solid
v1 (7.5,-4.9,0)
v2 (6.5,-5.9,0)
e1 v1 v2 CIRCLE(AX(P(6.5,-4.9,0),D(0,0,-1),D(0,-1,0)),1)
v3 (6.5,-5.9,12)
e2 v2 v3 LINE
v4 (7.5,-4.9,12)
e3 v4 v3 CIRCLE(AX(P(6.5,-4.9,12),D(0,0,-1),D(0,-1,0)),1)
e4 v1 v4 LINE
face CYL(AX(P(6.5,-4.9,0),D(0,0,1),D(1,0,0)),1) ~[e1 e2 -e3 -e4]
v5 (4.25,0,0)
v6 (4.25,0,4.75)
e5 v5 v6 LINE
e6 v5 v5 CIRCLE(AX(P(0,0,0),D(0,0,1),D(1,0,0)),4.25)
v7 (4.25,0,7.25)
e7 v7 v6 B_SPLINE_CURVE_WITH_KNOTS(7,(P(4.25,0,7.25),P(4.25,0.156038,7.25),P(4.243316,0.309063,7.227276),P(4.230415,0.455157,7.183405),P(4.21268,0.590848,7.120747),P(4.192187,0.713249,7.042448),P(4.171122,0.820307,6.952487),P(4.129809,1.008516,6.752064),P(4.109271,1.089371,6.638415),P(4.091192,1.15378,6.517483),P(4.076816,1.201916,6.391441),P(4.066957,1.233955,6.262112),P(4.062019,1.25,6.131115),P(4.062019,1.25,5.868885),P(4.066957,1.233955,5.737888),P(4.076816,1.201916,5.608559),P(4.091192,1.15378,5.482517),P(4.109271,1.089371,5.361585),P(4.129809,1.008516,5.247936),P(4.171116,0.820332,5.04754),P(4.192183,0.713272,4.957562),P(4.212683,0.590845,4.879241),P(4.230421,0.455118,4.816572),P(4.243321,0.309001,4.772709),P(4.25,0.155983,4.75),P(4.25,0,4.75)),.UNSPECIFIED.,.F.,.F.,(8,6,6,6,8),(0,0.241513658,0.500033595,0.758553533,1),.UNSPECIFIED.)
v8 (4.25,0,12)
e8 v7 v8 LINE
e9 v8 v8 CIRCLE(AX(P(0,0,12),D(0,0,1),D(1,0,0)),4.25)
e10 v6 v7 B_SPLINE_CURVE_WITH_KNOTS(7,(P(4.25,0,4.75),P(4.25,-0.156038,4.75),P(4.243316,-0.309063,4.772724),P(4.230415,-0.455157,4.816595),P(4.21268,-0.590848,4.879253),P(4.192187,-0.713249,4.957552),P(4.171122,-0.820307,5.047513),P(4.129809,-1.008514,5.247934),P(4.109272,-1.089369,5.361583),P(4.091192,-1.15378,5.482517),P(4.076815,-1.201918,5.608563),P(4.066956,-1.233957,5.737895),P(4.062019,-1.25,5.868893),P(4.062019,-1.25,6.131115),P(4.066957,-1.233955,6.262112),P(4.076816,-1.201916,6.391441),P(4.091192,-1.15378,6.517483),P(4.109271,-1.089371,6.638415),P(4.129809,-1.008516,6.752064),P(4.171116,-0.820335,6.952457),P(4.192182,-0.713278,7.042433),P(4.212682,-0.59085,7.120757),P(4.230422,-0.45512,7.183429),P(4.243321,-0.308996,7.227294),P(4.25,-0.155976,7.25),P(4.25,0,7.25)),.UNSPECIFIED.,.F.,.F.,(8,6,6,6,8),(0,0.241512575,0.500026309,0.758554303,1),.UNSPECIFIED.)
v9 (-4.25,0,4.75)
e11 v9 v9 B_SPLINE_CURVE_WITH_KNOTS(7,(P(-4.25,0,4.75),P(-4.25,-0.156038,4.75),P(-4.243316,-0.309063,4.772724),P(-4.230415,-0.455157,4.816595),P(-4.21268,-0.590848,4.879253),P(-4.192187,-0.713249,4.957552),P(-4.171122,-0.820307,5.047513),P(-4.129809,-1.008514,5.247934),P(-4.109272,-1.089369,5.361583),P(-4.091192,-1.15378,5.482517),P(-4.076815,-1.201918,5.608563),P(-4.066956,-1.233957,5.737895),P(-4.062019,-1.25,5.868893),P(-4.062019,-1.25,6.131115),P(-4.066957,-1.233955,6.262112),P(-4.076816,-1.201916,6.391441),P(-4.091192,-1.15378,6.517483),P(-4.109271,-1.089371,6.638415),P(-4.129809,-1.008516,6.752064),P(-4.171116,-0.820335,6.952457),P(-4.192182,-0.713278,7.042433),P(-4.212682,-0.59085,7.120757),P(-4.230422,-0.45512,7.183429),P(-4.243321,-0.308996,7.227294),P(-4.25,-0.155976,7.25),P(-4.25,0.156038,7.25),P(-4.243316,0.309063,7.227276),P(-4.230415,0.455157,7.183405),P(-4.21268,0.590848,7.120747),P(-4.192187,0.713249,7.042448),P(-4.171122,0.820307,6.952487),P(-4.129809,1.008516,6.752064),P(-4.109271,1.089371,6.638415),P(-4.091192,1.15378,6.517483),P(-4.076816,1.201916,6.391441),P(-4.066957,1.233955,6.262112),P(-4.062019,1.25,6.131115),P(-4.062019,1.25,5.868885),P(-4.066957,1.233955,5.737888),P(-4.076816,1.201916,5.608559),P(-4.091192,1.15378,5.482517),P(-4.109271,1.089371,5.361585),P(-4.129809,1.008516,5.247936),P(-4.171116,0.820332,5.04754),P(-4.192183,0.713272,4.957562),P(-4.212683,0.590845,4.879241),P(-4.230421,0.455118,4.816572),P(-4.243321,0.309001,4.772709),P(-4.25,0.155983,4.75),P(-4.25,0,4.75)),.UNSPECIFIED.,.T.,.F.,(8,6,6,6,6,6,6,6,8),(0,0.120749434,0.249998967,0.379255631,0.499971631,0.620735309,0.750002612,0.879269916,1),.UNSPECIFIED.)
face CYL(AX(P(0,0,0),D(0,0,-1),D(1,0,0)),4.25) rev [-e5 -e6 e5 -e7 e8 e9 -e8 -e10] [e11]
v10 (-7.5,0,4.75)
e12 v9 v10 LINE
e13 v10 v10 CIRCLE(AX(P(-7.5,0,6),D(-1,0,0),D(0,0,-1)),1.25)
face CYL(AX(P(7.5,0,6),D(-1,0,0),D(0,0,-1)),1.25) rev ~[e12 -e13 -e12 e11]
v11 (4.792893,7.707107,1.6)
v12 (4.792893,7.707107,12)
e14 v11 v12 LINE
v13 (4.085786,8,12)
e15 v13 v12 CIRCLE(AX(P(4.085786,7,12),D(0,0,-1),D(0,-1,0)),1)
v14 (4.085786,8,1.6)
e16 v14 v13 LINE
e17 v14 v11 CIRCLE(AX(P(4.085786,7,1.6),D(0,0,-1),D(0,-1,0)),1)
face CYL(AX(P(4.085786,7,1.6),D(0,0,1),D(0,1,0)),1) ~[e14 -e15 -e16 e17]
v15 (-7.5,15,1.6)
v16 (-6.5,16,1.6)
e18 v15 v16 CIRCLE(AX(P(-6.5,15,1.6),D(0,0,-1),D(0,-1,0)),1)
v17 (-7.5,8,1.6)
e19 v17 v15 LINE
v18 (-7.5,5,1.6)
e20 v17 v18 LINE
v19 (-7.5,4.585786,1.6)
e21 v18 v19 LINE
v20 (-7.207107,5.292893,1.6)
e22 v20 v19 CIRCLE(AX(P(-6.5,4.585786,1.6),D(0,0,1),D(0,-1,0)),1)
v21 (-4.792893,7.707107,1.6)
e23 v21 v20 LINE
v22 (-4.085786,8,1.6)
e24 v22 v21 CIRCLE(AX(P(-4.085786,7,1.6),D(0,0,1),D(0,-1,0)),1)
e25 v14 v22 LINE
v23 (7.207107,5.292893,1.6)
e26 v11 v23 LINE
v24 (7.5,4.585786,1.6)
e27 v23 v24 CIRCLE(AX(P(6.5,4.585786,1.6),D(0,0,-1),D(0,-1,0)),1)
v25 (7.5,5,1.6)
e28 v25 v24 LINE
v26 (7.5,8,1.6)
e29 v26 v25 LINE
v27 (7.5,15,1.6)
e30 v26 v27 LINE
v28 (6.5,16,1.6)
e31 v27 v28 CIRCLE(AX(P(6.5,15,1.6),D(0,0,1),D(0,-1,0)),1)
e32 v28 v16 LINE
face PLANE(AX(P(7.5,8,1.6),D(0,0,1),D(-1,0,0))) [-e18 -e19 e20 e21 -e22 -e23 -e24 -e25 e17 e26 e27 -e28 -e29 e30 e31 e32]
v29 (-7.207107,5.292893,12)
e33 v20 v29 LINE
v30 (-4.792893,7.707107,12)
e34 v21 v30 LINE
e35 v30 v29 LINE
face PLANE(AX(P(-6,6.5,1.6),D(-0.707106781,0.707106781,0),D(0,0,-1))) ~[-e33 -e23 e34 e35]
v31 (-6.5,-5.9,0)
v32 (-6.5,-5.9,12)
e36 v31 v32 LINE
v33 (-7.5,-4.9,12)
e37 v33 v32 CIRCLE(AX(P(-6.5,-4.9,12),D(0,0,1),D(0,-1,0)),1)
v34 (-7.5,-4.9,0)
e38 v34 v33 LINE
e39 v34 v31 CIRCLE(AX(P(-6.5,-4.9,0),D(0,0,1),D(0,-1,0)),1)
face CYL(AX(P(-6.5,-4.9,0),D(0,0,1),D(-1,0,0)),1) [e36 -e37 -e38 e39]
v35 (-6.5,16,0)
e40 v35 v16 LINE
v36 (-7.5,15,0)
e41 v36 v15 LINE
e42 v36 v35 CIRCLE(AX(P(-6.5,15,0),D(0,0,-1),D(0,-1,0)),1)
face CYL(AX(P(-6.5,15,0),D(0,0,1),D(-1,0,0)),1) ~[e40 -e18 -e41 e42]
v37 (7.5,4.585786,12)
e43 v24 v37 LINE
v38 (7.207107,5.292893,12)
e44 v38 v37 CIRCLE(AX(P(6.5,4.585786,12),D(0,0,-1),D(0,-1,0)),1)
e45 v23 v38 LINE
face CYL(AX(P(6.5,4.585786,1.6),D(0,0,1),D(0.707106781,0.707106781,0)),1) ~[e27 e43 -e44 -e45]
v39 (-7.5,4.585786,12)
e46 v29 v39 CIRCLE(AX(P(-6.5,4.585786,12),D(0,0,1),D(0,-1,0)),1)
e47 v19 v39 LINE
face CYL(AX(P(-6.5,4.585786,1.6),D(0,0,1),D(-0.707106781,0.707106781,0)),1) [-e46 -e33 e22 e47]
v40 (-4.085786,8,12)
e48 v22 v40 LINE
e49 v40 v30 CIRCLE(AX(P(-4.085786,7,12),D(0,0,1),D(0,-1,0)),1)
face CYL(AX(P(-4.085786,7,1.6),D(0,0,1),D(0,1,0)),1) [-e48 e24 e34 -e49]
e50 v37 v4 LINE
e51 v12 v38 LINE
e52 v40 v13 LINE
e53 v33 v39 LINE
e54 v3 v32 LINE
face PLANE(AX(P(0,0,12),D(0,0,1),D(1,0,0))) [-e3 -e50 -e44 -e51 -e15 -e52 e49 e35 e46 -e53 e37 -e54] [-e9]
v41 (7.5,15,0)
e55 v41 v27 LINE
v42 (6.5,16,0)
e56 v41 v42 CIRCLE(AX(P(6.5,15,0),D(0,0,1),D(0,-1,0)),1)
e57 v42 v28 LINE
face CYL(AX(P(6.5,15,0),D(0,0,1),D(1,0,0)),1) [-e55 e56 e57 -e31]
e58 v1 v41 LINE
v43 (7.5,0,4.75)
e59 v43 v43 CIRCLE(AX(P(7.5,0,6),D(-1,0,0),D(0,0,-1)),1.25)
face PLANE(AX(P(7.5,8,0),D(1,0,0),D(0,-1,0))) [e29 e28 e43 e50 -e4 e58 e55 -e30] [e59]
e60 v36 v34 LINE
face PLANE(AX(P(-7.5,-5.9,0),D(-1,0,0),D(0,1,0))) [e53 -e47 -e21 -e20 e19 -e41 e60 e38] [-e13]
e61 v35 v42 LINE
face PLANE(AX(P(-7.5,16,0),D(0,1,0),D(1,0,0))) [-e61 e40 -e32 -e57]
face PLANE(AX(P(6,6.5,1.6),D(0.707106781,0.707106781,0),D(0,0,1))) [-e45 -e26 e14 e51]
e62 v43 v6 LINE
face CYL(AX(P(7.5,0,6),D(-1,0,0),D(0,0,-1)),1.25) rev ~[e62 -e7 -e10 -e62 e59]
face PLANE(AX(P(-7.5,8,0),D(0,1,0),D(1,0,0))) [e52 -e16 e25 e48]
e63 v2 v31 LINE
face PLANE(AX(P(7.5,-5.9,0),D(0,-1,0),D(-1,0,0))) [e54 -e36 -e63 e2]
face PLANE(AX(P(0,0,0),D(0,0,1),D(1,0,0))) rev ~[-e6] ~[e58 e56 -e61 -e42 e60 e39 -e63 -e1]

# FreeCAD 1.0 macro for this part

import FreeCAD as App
import Part
import Sketcher

V = App.Vector
Q = App.Units.Quantity


def edges_at(feature, points):
    """Names of the edges that pass closest to the given points."""
    edges = feature.Shape.Edges
    near = lambda p: min(range(len(edges)), key=lambda i: edges[i].distToShape(Part.Vertex(*p))[0])
    return sorted({f"Edge{near(p) + 1}" for p in points})


def add_polygon(sketch, points):
    """Adds a closed chain of lines whose ends are joined by coincident constraints."""
    first, n = sketch.GeometryCount, len(points)
    for a, b in zip(points, points[1:] + points[:1]):
        sketch.addGeometry(Part.LineSegment(App.Vector(*a, 0), App.Vector(*b, 0)), False)
    for i in range(n):
        sketch.addConstraint(Sketcher.Constraint("Coincident", first + i, 2, first + (i + 1) % n, 1))

doc = App.newDocument("Part")
body = doc.addObject("PartDesign::Body", "Body")

# Sketch on XY plane
sketch1 = body.newObject("Sketcher::SketchObject", "Sketch")
sketch1.AttachmentSupport = (doc.getObject("XY_Plane"), [""])
sketch1.MapMode = "FlatFace"
add_polygon(sketch1, [(7.5, 8), (-7.5, 8), (-7.5, -5.9), (7.5, -5.9)])  # lines 0-3
sketch1.addGeometry(Part.Circle(V(0, 0, 0), V(0, 0, 1), 4.2), False)  # 4
sketch1.addConstraint([
    Sketcher.Constraint("Horizontal", 0),
    Sketcher.Constraint("Vertical", 1),
    Sketcher.Constraint("Horizontal", 2),
    Sketcher.Constraint("Vertical", 3),
    Sketcher.Constraint("Coincident", 4, 3, -1, 1),
    Sketcher.Constraint("Diameter", 4, Q("8.5 mm")),
    Sketcher.Constraint("DistanceX", 0, 2, 0, 1, Q("15 mm")),
    Sketcher.Constraint("DistanceY", -1, 1, 0, 2, Q("8 mm")),
    Sketcher.Constraint("DistanceY", 1, 2, -1, 1, Q("5.9 mm")),
    Sketcher.Constraint("DistanceX", 0, 2, -1, 1, Q("7.5 mm")),
])
pad1 = body.newObject("PartDesign::Pad", "Pad")
pad1.Profile = sketch1
pad1.Length = 12

# Sketch on XZ plane
sketch2 = body.newObject("Sketcher::SketchObject", "Sketch001")
sketch2.AttachmentSupport = (doc.getObject("XZ_Plane"), [""])
sketch2.MapMode = "FlatFace"
sketch2.AttachmentOffset = App.Placement(V(0, 0, -8), App.Rotation())
add_polygon(sketch2, [(7.5, 0), (-7.5, 0), (-7.5, 1.6), (7.5, 1.6)])  # lines 0-3
sketch2.addConstraint([
    Sketcher.Constraint("Horizontal", 0),
    Sketcher.Constraint("Vertical", 1),
    Sketcher.Constraint("Horizontal", 2),
    Sketcher.Constraint("Vertical", 3),
    Sketcher.Constraint("Symmetric", 0, 2, 3, 2, -1, 1),
    Sketcher.Constraint("DistanceY", 1, 1, 1, 2, Q("1.6 mm")),
    Sketcher.Constraint("DistanceX", 0, 2, 0, 1, Q("15 mm")),
])
pad2 = body.newObject("PartDesign::Pad", "Pad001")
pad2.Profile = sketch2
pad2.Length = 8
pad2.Reversed = True

# Sketch on YZ plane
sketch3 = body.newObject("Sketcher::SketchObject", "Sketch002")
sketch3.AttachmentSupport = (doc.getObject("YZ_Plane"), [""])
sketch3.MapMode = "FlatFace"
sketch3.AttachmentOffset = App.Placement(V(0, 0, 7.5), App.Rotation())
sketch3.addGeometry(Part.Circle(V(0, 6, 0), V(0, 0, 1), 1.2), False)
sketch3.addConstraint([
    Sketcher.Constraint("PointOnObject", 0, 3, -2),
    Sketcher.Constraint("Diameter", 0, Q("2.5 mm")),
    Sketcher.Constraint("DistanceY", -1, 1, 0, 3, Q("6 mm")),
])
doc.recompute()
hole = body.newObject("PartDesign::Hole", "Hole")
hole.Profile = sketch3
hole.ThreadType = "None"
hole.Diameter = 2.5
hole.DepthType = "ThroughAll"
doc.recompute()

chamfer = body.newObject("PartDesign::Chamfer", "Chamfer")
chamfer.Base = (hole, edges_at(hole, [(7.5, 8, 6.8), (-7.5, 8, 6.8)]))
chamfer.Size = 3
doc.recompute()

fillet = body.newObject("PartDesign::Fillet", "Fillet")
fillet.Base = (chamfer, edges_at(chamfer, [
    (-7.5, 16, 0.8),
    (-4.5, 8, 6.8),
    (-7.5, 5, 6.8),
    (-7.5, -5.9, 6),
]))
fillet.Radius = 1
doc.recompute()

fillet2 = body.newObject("PartDesign::Fillet", "Fillet001")
fillet2.Base = (fillet, edges_at(fillet, [
    (4.5, 8, 6.8),
    (7.5, 5, 6.8),
    (7.5, -5.9, 6),
    (7.5, 16, 0.8),
]))
fillet2.Radius = 1

doc.recompute()
